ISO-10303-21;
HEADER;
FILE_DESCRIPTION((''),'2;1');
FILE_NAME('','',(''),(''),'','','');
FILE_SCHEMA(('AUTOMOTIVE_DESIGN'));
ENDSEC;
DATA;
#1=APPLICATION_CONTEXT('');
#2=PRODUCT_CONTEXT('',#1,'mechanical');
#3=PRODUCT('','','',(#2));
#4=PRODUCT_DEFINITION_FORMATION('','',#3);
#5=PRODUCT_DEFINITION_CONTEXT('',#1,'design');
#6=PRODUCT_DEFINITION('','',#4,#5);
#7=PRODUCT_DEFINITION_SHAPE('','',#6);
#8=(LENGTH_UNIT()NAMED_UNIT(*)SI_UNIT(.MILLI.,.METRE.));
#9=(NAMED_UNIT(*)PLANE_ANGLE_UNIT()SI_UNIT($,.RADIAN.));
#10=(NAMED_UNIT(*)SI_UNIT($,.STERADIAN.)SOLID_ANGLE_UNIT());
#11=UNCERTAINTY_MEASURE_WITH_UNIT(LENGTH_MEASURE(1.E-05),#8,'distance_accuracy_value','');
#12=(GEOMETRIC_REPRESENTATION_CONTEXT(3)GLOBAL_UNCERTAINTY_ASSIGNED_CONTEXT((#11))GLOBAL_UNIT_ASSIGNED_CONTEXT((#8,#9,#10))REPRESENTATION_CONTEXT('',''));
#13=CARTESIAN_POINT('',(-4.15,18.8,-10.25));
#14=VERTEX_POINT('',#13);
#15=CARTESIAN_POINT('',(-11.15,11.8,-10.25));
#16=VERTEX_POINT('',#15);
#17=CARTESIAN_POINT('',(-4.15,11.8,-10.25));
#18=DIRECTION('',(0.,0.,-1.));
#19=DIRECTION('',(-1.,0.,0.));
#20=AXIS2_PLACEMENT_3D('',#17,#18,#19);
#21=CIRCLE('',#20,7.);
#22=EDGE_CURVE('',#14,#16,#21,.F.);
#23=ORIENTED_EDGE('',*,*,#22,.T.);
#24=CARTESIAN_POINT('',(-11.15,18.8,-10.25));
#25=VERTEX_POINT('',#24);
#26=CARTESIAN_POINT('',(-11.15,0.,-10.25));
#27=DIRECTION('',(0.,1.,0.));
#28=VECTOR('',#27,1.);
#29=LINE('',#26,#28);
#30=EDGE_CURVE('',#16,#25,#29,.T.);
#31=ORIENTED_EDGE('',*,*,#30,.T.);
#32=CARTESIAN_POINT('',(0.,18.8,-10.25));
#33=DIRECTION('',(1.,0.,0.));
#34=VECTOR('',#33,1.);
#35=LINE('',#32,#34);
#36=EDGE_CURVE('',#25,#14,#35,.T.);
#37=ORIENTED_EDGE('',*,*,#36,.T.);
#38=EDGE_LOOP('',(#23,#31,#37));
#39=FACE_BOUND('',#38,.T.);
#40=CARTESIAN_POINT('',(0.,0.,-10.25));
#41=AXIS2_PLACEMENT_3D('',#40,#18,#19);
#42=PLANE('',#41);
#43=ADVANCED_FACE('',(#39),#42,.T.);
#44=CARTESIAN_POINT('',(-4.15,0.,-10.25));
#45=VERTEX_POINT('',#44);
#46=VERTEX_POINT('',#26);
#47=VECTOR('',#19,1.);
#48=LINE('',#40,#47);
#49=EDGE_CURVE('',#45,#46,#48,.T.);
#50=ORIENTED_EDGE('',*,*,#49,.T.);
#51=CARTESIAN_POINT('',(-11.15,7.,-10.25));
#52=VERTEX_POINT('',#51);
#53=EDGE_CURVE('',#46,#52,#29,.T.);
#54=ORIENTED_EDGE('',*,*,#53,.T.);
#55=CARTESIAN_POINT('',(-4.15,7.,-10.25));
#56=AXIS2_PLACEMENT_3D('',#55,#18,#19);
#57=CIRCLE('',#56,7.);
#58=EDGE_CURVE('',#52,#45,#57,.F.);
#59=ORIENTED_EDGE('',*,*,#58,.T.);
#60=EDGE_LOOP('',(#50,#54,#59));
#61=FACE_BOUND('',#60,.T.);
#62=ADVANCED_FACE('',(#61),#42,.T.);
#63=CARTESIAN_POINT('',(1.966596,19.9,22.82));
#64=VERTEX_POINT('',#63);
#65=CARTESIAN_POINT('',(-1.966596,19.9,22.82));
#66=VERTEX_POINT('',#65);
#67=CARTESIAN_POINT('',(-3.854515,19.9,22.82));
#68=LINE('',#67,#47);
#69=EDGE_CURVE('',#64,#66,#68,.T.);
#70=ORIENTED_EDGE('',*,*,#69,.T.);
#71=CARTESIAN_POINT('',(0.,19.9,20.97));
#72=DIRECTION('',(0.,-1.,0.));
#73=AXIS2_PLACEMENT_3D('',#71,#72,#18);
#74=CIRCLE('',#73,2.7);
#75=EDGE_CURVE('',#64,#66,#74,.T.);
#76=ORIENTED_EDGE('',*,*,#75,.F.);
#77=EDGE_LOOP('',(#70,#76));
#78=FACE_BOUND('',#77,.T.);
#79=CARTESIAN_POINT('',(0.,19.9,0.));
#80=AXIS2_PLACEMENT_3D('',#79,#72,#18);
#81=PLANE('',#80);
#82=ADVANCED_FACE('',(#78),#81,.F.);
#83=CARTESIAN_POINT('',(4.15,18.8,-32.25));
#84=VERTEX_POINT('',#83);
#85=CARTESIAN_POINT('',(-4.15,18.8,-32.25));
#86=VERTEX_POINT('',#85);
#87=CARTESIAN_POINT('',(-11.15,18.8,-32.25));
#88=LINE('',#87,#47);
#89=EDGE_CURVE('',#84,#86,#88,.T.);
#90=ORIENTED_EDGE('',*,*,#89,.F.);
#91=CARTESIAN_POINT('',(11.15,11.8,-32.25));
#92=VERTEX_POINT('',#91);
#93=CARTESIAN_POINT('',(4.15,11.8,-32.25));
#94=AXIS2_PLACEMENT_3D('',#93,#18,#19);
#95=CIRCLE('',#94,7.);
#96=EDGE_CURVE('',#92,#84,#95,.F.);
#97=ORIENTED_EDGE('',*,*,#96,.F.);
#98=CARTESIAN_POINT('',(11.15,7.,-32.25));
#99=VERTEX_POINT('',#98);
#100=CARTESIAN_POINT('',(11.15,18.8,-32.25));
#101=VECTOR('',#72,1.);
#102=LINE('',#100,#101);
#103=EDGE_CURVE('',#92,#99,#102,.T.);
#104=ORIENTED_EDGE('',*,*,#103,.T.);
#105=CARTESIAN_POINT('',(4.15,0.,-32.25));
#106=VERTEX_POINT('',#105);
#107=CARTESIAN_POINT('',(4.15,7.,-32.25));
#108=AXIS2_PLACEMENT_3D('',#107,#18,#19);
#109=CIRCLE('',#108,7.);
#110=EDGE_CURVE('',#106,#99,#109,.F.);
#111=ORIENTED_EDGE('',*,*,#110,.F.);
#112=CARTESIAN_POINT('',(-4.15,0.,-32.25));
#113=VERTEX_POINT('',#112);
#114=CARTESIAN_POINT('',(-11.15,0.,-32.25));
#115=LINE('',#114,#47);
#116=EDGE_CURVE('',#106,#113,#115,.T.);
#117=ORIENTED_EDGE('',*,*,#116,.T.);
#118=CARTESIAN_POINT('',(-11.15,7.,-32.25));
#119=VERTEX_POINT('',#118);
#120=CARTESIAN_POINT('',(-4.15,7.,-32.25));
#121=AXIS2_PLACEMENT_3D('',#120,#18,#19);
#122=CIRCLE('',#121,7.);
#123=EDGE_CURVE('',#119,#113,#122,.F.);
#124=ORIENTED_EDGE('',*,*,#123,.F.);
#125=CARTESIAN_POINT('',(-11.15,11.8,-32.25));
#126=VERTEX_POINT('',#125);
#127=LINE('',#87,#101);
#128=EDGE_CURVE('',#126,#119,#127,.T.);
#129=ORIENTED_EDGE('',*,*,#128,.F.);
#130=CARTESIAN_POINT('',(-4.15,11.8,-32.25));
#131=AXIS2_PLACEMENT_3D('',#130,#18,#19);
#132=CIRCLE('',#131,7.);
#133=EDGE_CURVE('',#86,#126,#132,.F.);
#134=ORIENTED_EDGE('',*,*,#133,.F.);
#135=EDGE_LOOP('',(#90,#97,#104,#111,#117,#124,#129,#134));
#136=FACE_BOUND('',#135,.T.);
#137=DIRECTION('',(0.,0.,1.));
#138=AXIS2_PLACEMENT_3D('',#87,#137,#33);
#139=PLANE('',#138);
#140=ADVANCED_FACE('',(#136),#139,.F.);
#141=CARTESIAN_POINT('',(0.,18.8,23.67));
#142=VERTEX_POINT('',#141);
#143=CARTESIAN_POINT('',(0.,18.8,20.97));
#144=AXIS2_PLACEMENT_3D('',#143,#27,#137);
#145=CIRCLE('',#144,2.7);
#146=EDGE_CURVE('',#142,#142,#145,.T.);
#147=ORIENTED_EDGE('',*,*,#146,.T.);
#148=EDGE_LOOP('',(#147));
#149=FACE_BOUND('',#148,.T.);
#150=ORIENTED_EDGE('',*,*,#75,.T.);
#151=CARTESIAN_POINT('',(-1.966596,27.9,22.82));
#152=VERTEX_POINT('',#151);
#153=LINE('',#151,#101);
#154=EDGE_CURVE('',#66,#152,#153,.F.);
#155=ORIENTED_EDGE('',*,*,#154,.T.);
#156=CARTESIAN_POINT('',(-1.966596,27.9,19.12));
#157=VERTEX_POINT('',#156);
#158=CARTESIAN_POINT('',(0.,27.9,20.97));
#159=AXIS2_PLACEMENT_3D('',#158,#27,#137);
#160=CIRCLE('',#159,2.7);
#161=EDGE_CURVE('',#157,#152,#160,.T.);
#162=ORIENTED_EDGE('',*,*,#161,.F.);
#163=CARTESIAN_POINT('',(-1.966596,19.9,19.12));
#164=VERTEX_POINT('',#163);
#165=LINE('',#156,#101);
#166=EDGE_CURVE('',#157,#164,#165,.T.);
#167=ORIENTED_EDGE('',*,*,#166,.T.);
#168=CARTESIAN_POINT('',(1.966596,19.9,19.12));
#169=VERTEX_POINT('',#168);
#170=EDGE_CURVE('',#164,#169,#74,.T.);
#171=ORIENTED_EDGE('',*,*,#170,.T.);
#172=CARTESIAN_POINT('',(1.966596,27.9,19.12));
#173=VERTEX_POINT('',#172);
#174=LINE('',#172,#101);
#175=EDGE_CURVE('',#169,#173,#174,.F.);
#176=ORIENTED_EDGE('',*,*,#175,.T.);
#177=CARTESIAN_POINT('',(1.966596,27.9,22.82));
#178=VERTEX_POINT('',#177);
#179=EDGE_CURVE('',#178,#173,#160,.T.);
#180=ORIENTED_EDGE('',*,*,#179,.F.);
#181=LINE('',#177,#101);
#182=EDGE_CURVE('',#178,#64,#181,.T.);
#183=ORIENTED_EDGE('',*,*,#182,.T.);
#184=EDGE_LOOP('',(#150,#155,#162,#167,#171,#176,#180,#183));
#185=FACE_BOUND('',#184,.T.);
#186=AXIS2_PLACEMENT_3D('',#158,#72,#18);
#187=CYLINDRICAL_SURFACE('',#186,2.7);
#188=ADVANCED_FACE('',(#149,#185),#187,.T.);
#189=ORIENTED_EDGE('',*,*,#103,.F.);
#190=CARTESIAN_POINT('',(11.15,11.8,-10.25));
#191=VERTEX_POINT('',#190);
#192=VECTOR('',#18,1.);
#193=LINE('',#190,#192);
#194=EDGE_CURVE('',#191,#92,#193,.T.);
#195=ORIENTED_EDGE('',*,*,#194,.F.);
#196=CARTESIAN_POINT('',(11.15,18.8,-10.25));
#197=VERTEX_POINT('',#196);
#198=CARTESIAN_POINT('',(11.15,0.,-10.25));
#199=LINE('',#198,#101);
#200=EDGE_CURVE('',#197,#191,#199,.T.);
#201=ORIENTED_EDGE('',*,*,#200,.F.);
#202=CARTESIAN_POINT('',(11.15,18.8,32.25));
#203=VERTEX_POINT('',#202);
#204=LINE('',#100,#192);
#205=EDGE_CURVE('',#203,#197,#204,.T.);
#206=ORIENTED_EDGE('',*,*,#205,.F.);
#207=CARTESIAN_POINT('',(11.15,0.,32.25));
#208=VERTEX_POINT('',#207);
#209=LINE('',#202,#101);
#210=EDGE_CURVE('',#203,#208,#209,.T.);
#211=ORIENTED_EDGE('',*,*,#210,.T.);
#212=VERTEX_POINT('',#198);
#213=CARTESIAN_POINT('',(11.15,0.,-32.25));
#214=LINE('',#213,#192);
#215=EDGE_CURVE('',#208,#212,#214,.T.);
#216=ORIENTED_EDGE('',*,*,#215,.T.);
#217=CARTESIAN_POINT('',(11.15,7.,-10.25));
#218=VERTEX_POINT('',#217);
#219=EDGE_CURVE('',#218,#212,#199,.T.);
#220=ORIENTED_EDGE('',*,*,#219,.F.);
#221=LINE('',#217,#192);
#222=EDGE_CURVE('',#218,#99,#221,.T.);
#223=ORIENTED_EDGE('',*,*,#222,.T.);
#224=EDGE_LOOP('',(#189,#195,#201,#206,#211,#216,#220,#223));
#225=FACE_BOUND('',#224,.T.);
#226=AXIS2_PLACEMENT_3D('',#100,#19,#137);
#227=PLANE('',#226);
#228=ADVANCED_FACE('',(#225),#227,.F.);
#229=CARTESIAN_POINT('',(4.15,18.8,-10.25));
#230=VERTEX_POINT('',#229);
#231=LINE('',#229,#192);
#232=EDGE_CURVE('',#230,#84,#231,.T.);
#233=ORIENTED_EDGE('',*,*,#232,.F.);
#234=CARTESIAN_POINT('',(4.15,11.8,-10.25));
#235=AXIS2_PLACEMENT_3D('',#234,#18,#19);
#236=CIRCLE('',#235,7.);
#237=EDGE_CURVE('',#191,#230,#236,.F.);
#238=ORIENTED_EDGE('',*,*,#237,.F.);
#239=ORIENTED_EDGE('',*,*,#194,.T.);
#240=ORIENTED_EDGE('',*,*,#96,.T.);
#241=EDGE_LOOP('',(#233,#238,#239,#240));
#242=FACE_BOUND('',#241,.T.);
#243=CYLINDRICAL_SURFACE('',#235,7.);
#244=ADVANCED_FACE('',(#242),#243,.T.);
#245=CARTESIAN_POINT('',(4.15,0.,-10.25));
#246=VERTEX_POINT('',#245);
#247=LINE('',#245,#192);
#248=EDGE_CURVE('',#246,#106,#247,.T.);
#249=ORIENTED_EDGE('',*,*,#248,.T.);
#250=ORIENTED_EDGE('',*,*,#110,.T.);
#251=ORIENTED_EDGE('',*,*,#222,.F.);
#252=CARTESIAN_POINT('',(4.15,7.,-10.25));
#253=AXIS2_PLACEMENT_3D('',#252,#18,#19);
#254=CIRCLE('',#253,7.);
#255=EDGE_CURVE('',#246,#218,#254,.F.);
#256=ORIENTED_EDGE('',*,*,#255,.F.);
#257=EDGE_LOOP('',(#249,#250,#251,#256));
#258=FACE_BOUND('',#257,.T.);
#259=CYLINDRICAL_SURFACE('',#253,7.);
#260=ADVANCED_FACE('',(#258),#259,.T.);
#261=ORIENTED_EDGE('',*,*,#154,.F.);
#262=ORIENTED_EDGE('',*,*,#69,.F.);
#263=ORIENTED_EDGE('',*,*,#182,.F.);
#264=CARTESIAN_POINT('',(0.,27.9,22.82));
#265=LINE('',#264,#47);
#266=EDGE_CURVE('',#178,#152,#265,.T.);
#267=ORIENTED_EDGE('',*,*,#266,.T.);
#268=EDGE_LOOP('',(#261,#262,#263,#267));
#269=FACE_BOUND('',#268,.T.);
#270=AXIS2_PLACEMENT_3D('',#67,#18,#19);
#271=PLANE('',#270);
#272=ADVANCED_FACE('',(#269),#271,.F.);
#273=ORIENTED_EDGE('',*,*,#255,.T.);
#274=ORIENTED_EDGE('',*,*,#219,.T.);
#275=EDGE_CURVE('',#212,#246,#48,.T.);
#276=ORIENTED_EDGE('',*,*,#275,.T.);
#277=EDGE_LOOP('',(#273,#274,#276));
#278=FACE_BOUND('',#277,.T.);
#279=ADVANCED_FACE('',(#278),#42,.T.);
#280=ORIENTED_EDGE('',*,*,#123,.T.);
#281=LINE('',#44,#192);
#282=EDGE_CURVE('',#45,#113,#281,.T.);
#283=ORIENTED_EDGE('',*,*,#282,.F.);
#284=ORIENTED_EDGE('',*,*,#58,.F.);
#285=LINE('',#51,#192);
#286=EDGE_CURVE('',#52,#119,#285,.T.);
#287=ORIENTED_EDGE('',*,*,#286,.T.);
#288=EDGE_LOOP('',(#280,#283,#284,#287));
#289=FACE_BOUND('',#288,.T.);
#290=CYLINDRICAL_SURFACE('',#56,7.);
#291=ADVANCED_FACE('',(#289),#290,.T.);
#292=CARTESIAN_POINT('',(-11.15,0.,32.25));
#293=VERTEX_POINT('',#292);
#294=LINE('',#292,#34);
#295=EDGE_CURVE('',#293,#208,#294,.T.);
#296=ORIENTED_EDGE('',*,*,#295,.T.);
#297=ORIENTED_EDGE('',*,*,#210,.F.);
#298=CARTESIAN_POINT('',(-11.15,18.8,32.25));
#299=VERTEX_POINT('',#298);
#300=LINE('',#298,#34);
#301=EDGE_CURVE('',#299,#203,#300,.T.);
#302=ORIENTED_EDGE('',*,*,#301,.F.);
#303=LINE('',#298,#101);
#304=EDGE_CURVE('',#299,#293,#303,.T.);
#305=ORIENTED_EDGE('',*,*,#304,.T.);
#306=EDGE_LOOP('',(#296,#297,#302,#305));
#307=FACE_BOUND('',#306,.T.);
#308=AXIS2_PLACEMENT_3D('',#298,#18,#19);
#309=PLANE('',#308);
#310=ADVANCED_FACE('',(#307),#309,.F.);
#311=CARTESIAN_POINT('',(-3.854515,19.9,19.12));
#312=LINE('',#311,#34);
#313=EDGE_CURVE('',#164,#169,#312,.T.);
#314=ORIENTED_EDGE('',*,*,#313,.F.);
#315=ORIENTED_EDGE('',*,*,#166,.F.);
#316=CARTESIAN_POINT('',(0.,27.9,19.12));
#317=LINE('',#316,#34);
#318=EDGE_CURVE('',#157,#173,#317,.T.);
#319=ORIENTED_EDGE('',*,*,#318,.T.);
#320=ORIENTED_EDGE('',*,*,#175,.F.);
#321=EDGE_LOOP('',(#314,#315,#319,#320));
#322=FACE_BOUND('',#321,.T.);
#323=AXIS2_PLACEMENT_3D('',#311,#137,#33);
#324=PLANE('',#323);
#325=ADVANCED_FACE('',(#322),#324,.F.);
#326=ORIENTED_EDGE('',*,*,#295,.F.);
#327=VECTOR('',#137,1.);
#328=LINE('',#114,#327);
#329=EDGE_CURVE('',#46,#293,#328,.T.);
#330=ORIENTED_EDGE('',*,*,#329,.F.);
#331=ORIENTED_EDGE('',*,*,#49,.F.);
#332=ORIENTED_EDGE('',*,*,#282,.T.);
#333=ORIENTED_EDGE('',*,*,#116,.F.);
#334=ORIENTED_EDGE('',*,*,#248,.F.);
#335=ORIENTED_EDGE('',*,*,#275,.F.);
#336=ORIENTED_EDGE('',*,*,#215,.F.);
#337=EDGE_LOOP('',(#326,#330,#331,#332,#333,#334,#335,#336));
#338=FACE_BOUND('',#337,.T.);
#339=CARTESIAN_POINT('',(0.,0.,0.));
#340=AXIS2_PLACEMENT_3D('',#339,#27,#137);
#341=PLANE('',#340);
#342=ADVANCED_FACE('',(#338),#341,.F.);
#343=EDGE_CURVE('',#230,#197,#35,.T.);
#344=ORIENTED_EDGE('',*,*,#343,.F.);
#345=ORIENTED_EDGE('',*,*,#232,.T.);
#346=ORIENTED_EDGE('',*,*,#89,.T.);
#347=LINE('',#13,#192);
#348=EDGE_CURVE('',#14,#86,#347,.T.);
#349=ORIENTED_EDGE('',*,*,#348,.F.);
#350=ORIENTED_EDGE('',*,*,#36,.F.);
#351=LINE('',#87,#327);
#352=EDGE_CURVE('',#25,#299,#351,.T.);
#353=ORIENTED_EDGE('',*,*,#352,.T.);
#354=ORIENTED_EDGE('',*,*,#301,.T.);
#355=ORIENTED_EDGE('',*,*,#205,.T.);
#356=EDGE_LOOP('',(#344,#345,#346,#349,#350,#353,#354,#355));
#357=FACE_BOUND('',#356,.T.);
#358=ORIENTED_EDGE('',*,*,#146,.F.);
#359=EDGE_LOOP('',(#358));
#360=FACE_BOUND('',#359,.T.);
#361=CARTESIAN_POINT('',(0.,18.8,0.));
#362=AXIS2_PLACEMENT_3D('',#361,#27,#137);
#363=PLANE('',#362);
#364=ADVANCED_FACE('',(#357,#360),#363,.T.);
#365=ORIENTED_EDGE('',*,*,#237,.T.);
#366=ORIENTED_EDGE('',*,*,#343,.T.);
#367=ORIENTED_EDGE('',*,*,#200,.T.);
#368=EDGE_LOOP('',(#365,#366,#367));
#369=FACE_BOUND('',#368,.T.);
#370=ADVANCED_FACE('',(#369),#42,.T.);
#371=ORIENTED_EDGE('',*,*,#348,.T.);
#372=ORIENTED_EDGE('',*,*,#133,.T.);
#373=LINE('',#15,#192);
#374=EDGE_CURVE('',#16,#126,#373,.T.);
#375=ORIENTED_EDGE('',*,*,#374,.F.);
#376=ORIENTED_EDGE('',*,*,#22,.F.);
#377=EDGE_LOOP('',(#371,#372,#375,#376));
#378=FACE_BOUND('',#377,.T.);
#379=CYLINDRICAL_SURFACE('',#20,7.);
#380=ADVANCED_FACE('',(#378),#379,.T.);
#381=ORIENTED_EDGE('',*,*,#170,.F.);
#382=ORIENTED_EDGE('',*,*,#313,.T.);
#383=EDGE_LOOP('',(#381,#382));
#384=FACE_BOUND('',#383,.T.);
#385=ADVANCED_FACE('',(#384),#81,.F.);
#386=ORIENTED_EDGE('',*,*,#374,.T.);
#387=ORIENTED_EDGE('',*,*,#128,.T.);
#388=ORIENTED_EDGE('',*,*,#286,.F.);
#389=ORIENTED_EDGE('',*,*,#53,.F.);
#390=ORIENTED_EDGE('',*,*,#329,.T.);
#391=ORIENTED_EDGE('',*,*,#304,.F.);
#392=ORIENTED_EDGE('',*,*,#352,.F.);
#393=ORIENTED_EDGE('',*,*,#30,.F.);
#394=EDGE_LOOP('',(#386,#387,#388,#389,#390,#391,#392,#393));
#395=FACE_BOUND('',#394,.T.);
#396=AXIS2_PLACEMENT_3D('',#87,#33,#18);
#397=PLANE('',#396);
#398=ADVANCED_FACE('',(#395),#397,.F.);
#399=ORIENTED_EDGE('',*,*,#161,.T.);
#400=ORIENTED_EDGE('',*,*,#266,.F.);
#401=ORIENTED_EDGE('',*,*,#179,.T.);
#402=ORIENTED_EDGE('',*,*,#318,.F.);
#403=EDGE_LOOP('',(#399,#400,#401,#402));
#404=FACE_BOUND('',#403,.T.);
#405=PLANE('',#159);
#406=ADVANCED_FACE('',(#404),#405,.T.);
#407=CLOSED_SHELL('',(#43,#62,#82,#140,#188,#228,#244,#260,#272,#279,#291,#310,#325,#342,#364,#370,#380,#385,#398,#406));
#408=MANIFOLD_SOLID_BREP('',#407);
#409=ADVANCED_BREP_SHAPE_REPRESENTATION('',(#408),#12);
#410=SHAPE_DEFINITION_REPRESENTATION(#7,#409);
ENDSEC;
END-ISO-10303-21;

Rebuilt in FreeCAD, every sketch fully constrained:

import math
import FreeCAD as App
import Part
import Sketcher

V = App.Vector


def add_polygon(sketch, points):
    """Adds a closed chain of lines whose ends are joined by coincident constraints."""
    first, n = sketch.GeometryCount, len(points)
    for a, b in zip(points, points[1:] + points[:1]):
        sketch.addGeometry(Part.LineSegment(App.Vector(*a, 0), App.Vector(*b, 0)), False)
    for i in range(n):
        sketch.addConstraint(Sketcher.Constraint("Coincident", first + i, 2, first + (i + 1) % n, 1))

doc = App.newDocument("Part")
body = doc.addObject("PartDesign::Body", "Body")

# Sketch on XZ plane
sketch1 = doc.addObject("Sketcher::SketchObject", "Sketch")
body.addObject(sketch1)
sketch1.AttachmentSupport = (doc.XZ_Plane, [""])
sketch1.MapMode = "FlatFace"
add_polygon(sketch1, [(-11, -32), (-11, 32), (11, 32), (11, -32)])  # lines 0-3
sketch1.addConstraint([
    Sketcher.Constraint("Vertical", 0),
    Sketcher.Constraint("Horizontal", 1),
    Sketcher.Constraint("Vertical", 2),
    Sketcher.Constraint("Horizontal", 3),
    Sketcher.Constraint("Symmetric", 0, 2, 2, 2, -1, 1),
    Sketcher.Constraint("DistanceX", 1, 1, 1, 2, 22.3),
    Sketcher.Constraint("DistanceY", 0, 1, 0, 2, 64.5),
])
pad1 = doc.addObject("PartDesign::Pad", "Pad")
body.addObject(pad1)
pad1.Profile = sketch1
pad1.Length = 18.8
pad1.Reversed = True

# Sketch on XZ plane
sketch2 = doc.addObject("Sketcher::SketchObject", "Sketch001")
body.addObject(sketch2)
sketch2.AttachmentSupport = (doc.XZ_Plane, [""])
sketch2.MapMode = "FlatFace"
sketch2.AttachmentOffset = App.Placement(V(0, 0, -18.8), App.Rotation())
sketch2.addGeometry(Part.Circle(V(0, 21, 0), V(0, 0, 1), 2.7), False)
sketch2.addConstraint([
    Sketcher.Constraint("PointOnObject", 0, 3, -2),
    Sketcher.Constraint("Diameter", 0, 5.4),
    Sketcher.Constraint("DistanceY", -1, 1, 0, 3, 20.97),
])
pad2 = doc.addObject("PartDesign::Pad", "Pad001")
body.addObject(pad2)
pad2.Profile = sketch2
pad2.Length = 9.1
pad2.Reversed = True

# Sketch on XZ plane
sketch3 = doc.addObject("Sketcher::SketchObject", "Sketch002")
body.addObject(sketch3)
sketch3.AttachmentSupport = (doc.XZ_Plane, [""])
sketch3.MapMode = "FlatFace"
sketch3.AttachmentOffset = App.Placement(V(0, 0, -27.9), App.Rotation())
add_polygon(sketch3, [(-3.9, 17.7), (-3.9, 19.1), (3.9, 19.1), (3.9, 17.7)])  # lines 0-3
add_polygon(sketch3, [(-3.9, 22.8), (-3.9, 24.4), (3.9, 24.4), (3.9, 22.8)])  # lines 4-7
sketch3.addConstraint([
    Sketcher.Constraint("Vertical", 0),
    Sketcher.Constraint("Horizontal", 1),
    Sketcher.Constraint("Vertical", 2),
    Sketcher.Constraint("Horizontal", 3),
    Sketcher.Constraint("Vertical", 4),
    Sketcher.Constraint("Horizontal", 5),
    Sketcher.Constraint("Vertical", 6),
    Sketcher.Constraint("Horizontal", 7),
    Sketcher.Constraint("Vertical", 3, 2, 4, 2),
    Sketcher.Constraint("Vertical", 2, 2, 5, 2),
    Sketcher.Constraint("DistanceY", 1, 2, 6, 2, 3.7),
    Sketcher.Constraint("DistanceY", -1, 1, 0, 2, 19.12),
    Sketcher.Constraint("DistanceX", 1, 1, 1, 2, 7.70903),
    Sketcher.Constraint("DistanceY", 4, 1, 4, 2, 1.59927),
    Sketcher.Constraint("DistanceY", 0, 1, 0, 2, 1.426485),
    Sketcher.Constraint("DistanceX", 0, 2, -1, 1, 3.854515),
])
pocket1 = doc.addObject("PartDesign::Pocket", "Pocket")
body.addObject(pocket1)
pocket1.Profile = sketch3
pocket1.Length = 8
pocket1.Reversed = True

# Sketch on XY plane
sketch4 = doc.addObject("Sketcher::SketchObject", "Sketch003")
body.addObject(sketch4)
sketch4.AttachmentSupport = (doc.XY_Plane, [""])
sketch4.MapMode = "FlatFace"
sketch4.AttachmentOffset = App.Placement(V(0, 0, -32.25), App.Rotation())
sketch4.addGeometry([
    Part.ArcOfCircle(Part.Circle(V(-4, 7, 0), V(0, 0, 1), 7), math.radians(-180), math.radians(-90)),  # 0
    Part.LineSegment(V(-4, 0, 0), V(-11, 0, 0)),  # 1
    Part.LineSegment(V(-11, 0, 0), V(-11, 7, 0)),  # 2
    Part.ArcOfCircle(Part.Circle(V(-4, 12, 0), V(0, 0, 1), 7), math.radians(90), math.radians(180)),  # 3
    Part.LineSegment(V(-11, 12, 0), V(-11, 19, 0)),  # 4
    Part.LineSegment(V(-11, 19, 0), V(-4, 19, 0)),  # 5
    Part.LineSegment(V(11, 0, 0), V(4, 0, 0)),  # 6
    Part.ArcOfCircle(Part.Circle(V(4, 7, 0), V(0, 0, 1), 7), math.radians(-90), math.radians(0)),  # 7
    Part.LineSegment(V(11, 7, 0), V(11, 0, 0)),  # 8
    Part.LineSegment(V(11, 19, 0), V(11, 12, 0)),  # 9
    Part.ArcOfCircle(Part.Circle(V(4, 12, 0), V(0, 0, 1), 7), math.radians(0), math.radians(90)),  # 10
    Part.LineSegment(V(4, 19, 0), V(11, 19, 0)),  # 11
], False)
sketch4.addConstraint([
    Sketcher.Constraint("Tangent", 0, 2, 1, 1),
    Sketcher.Constraint("Coincident", 1, 2, 2, 1),
    Sketcher.Constraint("Tangent", 2, 2, 0, 1),
    Sketcher.Constraint("Tangent", 3, 2, 4, 1),
    Sketcher.Constraint("Coincident", 4, 2, 5, 1),
    Sketcher.Constraint("Tangent", 5, 2, 3, 1),
    Sketcher.Constraint("Tangent", 6, 2, 7, 1),
    Sketcher.Constraint("Tangent", 7, 2, 8, 1),
    Sketcher.Constraint("Coincident", 8, 2, 6, 1),
    Sketcher.Constraint("Tangent", 9, 2, 10, 1),
    Sketcher.Constraint("Tangent", 10, 2, 11, 1),
    Sketcher.Constraint("Coincident", 11, 2, 9, 1),
    Sketcher.Constraint("Horizontal", 1),
    Sketcher.Constraint("Vertical", 2),
    Sketcher.Constraint("Vertical", 4),
    Sketcher.Constraint("Horizontal", 5),
    Sketcher.Constraint("Horizontal", 6),
    Sketcher.Constraint("Vertical", 8),
    Sketcher.Constraint("Vertical", 9),
    Sketcher.Constraint("Horizontal", 11),
    Sketcher.Constraint("Equal", 0, 3),
    Sketcher.Constraint("Equal", 3, 7),
    Sketcher.Constraint("Equal", 7, 10),
    Sketcher.Constraint("Symmetric", 0, 2, 6, 2, -1, 1),
    Sketcher.Constraint("Symmetric", 3, 3, 10, 3, -2),
    Sketcher.Constraint("PointOnObject", 0, 2, -1),
    Sketcher.Constraint("Vertical", 0, 3, 3, 3),
    Sketcher.Constraint("Radius", 0, 7.0),
    Sketcher.Constraint("DistanceY", -1, 1, 3, 3, 11.8),
    Sketcher.Constraint("DistanceX", 0, 3, 7, 3, 8.3),
])
pocket2 = doc.addObject("PartDesign::Pocket", "Pocket001")
body.addObject(pocket2)
pocket2.Profile = sketch4
pocket2.Length = 22
pocket2.Reversed = True

doc.recompute()
